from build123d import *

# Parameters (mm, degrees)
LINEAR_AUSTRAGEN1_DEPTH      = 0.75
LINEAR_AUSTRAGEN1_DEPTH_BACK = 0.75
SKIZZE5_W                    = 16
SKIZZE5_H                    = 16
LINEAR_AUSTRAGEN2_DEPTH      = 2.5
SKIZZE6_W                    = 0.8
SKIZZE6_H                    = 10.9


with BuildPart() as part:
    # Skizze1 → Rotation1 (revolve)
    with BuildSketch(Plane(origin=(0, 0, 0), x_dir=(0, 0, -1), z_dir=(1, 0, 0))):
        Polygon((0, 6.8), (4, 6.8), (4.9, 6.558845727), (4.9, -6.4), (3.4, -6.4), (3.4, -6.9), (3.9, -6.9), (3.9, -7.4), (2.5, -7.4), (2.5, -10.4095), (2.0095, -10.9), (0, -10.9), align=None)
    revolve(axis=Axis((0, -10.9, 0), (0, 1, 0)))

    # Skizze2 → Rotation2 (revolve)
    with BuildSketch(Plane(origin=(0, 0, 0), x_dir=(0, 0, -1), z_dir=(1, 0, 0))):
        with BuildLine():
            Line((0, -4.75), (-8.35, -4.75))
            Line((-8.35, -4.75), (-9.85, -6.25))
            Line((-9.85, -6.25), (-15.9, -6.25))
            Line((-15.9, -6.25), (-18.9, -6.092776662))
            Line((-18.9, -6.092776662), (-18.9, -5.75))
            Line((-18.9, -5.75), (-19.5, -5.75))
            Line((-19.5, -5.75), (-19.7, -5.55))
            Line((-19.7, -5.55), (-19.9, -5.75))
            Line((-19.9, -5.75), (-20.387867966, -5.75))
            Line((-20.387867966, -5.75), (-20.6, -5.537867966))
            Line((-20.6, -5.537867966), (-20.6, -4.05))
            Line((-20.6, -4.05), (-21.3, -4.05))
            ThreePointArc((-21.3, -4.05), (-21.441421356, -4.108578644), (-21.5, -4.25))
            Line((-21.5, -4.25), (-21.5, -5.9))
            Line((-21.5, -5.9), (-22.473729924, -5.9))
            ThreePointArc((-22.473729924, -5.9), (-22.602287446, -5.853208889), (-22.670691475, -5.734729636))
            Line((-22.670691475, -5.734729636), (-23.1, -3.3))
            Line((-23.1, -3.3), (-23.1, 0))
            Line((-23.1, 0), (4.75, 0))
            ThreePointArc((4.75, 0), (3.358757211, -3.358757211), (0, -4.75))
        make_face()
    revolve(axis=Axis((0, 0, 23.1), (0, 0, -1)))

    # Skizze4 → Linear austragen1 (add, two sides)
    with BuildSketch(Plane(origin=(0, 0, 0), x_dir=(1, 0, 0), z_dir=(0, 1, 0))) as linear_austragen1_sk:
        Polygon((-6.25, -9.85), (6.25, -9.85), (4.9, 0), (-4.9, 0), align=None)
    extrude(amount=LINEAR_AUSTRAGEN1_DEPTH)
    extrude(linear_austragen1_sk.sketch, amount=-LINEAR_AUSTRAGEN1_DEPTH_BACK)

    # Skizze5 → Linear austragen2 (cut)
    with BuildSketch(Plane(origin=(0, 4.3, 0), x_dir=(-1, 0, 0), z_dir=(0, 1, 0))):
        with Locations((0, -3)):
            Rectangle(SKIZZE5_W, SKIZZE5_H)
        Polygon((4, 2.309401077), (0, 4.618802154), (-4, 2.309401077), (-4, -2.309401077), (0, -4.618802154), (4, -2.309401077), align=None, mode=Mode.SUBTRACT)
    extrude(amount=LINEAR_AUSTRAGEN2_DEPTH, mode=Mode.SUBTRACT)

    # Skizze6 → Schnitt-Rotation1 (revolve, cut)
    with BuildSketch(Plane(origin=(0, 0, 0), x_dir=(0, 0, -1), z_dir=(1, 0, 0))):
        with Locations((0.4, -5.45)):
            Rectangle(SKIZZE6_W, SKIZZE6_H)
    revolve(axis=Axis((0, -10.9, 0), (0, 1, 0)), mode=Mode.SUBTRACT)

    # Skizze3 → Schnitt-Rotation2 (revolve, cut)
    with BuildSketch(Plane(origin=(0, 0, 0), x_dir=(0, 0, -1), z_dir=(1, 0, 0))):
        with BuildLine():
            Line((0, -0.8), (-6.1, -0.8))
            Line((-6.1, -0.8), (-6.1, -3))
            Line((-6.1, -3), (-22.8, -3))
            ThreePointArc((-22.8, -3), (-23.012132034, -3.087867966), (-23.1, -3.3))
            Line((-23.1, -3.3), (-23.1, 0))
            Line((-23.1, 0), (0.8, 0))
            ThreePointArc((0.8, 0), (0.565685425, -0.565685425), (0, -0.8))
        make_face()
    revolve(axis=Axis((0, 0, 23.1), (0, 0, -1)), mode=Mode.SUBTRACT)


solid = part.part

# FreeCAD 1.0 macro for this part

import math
import FreeCAD as App
import Part
import Sketcher
from FreeCAD import Vector
Q = App.Units.Quantity


def add_polygon(sketch, points):
    """Adds a closed chain of lines whose ends are joined by coincident constraints."""
    first, n = sketch.GeometryCount, len(points)
    for a, b in zip(points, points[1:] + points[:1]):
        sketch.addGeometry(Part.LineSegment(App.Vector(*a, 0), App.Vector(*b, 0)), False)
    for i in range(n):
        sketch.addConstraint(Sketcher.Constraint("Coincident", first + i, 2, first + (i + 1) % n, 1))

doc = App.newDocument("Part")
body = doc.addObject("PartDesign::Body", "Body")

# Sketch on YZ plane
sketch1 = body.newObject("Sketcher::SketchObject", "Sketch")
sketch1.AttachmentSupport = (doc.getObject("YZ_Plane"), [""])
sketch1.MapMode = "FlatFace"
add_polygon(sketch1, [(6.8, -4), (6.8, 0), (-10.9, 0), (-10.9, -2.0095), (-10.4095, -2.5), (-7.4, -2.5), (-7.4, -3.9), (-6.9, -3.9), (-6.9, -3.4), (-6.4, -3.4), (-6.4, -4.9), (6.558846, -4.9)])  # lines 0-11
sketch1.addConstraint([
    Sketcher.Constraint("Vertical", 0),
    Sketcher.Constraint("Horizontal", 1),
    Sketcher.Constraint("Vertical", 2),
    Sketcher.Constraint("Horizontal", 4),
    Sketcher.Constraint("Vertical", 5),
    Sketcher.Constraint("Horizontal", 6),
    Sketcher.Constraint("Vertical", 7),
    Sketcher.Constraint("Horizontal", 8),
    Sketcher.Constraint("Vertical", 9),
    Sketcher.Constraint("Horizontal", 10),
    Sketcher.Constraint("PointOnObject", 0, 2, -1),
    Sketcher.Constraint("Equal", 6, 8),
    Sketcher.Constraint("Equal", 8, 7),
    Sketcher.Constraint("DistanceY", 0, 1, 0, 2, Q("4 mm")),
    Sketcher.Constraint("Angle", 3, Q("-45 deg")),
    Sketcher.Constraint("Angle", 11, Q("75 deg")),
    Sketcher.Constraint("DistanceX", 1, 2, 1, 1, Q("17.7 mm")),
    Sketcher.Constraint("DistanceX", 6, 1, 6, 2, Q("0.5 mm")),
    Sketcher.Constraint("DistanceY", 5, 2, 5, 1, Q("1.4 mm")),
    Sketcher.Constraint("DistanceY", 9, 2, 9, 1, Q("1.5 mm")),
    Sketcher.Constraint("DistanceX", 2, 2, 6, 2, Q("4 mm")),
    Sketcher.Constraint("DistanceX", -1, 1, 0, 2, Q("6.8 mm")),
    Sketcher.Constraint("DistanceY", 3, 2, -1, 1, Q("2.5 mm")),
    Sketcher.Constraint("DistanceX", 4, 1, 4, 2, Q("3.0095 mm")),
])
revolution = body.newObject("PartDesign::Revolution", "Revolution")
revolution.Profile = sketch1
revolution.ReferenceAxis = (sketch1, ["H_Axis"])
revolution.Angle = 360

# Sketch on YZ plane
sketch2 = body.newObject("Sketcher::SketchObject", "Sketch001")
sketch2.AttachmentSupport = (doc.getObject("YZ_Plane"), [""])
sketch2.MapMode = "FlatFace"
sketch2.addGeometry([
    Part.LineSegment(Vector(-4.75, 8.35, 0), Vector(-4.75, 0, 0)),  # 0
    Part.ArcOfCircle(Part.Circle(Vector(0, 0, 0), Vector(0, 0, 1), 4.75), math.radians(180), math.radians(270)),  # 1
    Part.LineSegment(Vector(0, -4.75, 0), Vector(0, 23.1, 0)),  # 2
    Part.LineSegment(Vector(0, 23.1, 0), Vector(-3.3, 23.1, 0)),  # 3
    Part.LineSegment(Vector(-3.3, 23.1, 0), Vector(-5.73473, 22.670691, 0)),  # 4
    Part.ArcOfCircle(Part.Circle(Vector(-5.7, 22.47373, 0), Vector(0, 0, 1), 0.2), math.radians(100), math.radians(180)),  # 5
    Part.LineSegment(Vector(-5.9, 22.47373, 0), Vector(-5.9, 21.5, 0)),  # 6
    Part.LineSegment(Vector(-5.9, 21.5, 0), Vector(-4.25, 21.5, 0)),  # 7
    Part.ArcOfCircle(Part.Circle(Vector(-4.25, 21.3, 0), Vector(0, 0, 1), 0.2), math.radians(0), math.radians(90)),  # 8
    Part.LineSegment(Vector(-4.05, 21.3, 0), Vector(-4.05, 20.6, 0)),  # 9
    Part.LineSegment(Vector(-4.05, 20.6, 0), Vector(-5.537868, 20.6, 0)),  # 10
    Part.LineSegment(Vector(-5.537868, 20.6, 0), Vector(-5.75, 20.387868, 0)),  # 11
    Part.LineSegment(Vector(-5.75, 20.387868, 0), Vector(-5.75, 19.9, 0)),  # 12
    Part.LineSegment(Vector(-5.75, 19.9, 0), Vector(-5.55, 19.7, 0)),  # 13
    Part.LineSegment(Vector(-5.55, 19.7, 0), Vector(-5.75, 19.5, 0)),  # 14
    Part.LineSegment(Vector(-5.75, 19.5, 0), Vector(-5.75, 18.9, 0)),  # 15
    Part.LineSegment(Vector(-5.75, 18.9, 0), Vector(-6.092777, 18.9, 0)),  # 16
    Part.LineSegment(Vector(-6.092777, 18.9, 0), Vector(-6.25, 15.9, 0)),  # 17
    Part.LineSegment(Vector(-6.25, 15.9, 0), Vector(-6.25, 9.85, 0)),  # 18
    Part.LineSegment(Vector(-6.25, 9.85, 0), Vector(-4.75, 8.35, 0)),  # 19
], False)
sketch2.addConstraint([
    Sketcher.Constraint("Tangent", 0, 2, 1, 1),
    Sketcher.Constraint("Coincident", 1, 2, 2, 1),
    Sketcher.Constraint("Coincident", 2, 2, 3, 1),
    Sketcher.Constraint("Coincident", 3, 2, 4, 1),
    Sketcher.Constraint("Tangent", 4, 2, 5, 1),
    Sketcher.Constraint("Tangent", 5, 2, 6, 1),
    Sketcher.Constraint("Coincident", 6, 2, 7, 1),
    Sketcher.Constraint("Tangent", 7, 2, 8, 2),
    Sketcher.Constraint("Tangent", 8, 1, 9, 1),
    Sketcher.Constraint("Coincident", 9, 2, 10, 1),
    Sketcher.Constraint("Coincident", 10, 2, 11, 1),
    Sketcher.Constraint("Coincident", 11, 2, 12, 1),
    Sketcher.Constraint("Coincident", 12, 2, 13, 1),
    Sketcher.Constraint("Coincident", 13, 2, 14, 1),
    Sketcher.Constraint("Coincident", 14, 2, 15, 1),
    Sketcher.Constraint("Coincident", 15, 2, 16, 1),
    Sketcher.Constraint("Coincident", 16, 2, 17, 1),
    Sketcher.Constraint("Coincident", 17, 2, 18, 1),
    Sketcher.Constraint("Coincident", 18, 2, 19, 1),
    Sketcher.Constraint("Coincident", 19, 2, 0, 1),
    Sketcher.Constraint("Vertical", 0),
    Sketcher.Constraint("Vertical", 2),
    Sketcher.Constraint("Horizontal", 3),
    Sketcher.Constraint("Vertical", 6),
    Sketcher.Constraint("Horizontal", 7),
    Sketcher.Constraint("Vertical", 9),
    Sketcher.Constraint("Horizontal", 10),
    Sketcher.Constraint("Vertical", 12),
    Sketcher.Constraint("Vertical", 15),
    Sketcher.Constraint("Horizontal", 16),
    Sketcher.Constraint("Vertical", 18),
    Sketcher.Constraint("Coincident", 1, 3, -1, 1),
    Sketcher.Constraint("Equal", 5, 8),
    Sketcher.Constraint("PointOnObject", 1, 2, -2),
    Sketcher.Constraint("Perpendicular", 11, 13),
    Sketcher.Constraint("Perpendicular", 13, 14),
    Sketcher.Constraint("Perpendicular", 14, 19),
    Sketcher.Constraint("Vertical", 12, 2, 14, 2),
    Sketcher.Constraint("Equal", 13, 14),
    Sketcher.Constraint("Radius", 5, Q("0.2 mm")),
    Sketcher.Constraint("Angle", 4, Q("-170 deg")),
    Sketcher.Constraint("Angle", 17, Q("-93 deg")),
    Sketcher.Constraint("Radius", 1, Q("4.75 mm")),
    Sketcher.Constraint("DistanceX", 3, 2, 3, 1, Q("3.3 mm")),
    Sketcher.Constraint("DistanceY", 9, 2, 9, 1, Q("0.7 mm")),
    Sketcher.Constraint("DistanceY", 15, 2, 15, 1, Q("0.6 mm")),
    Sketcher.Constraint("DistanceY", 14, 2, 6, 2, Q("2 mm")),
    Sketcher.Constraint("DistanceY", 15, 2, 12, 2, Q("1 mm")),
    Sketcher.Constraint("DistanceY", 17, 2, 16, 2, Q("3 mm")),
    Sketcher.Constraint("DistanceX", 15, 2, 19, 2, Q("1 mm")),
    Sketcher.Constraint("Distance", 11, Q("0.3 mm")),
    Sketcher.Constraint("DistanceX", 7, 1, 7, 2, Q("1.65 mm")),
    Sketcher.Constraint("DistanceY", 0, 2, 0, 1, Q("8.35 mm")),
    Sketcher.Constraint("DistanceY", 2, 1, 2, 2, Q("27.85 mm")),
    Sketcher.Constraint("DistanceY", 18, 2, 18, 1, Q("6.05 mm")),
    Sketcher.Constraint("DistanceX", 5, 3, -1, 1, Q("5.7 mm")),
    Sketcher.Constraint("DistanceY", -1, 1, 8, 3, Q("21.3 mm")),
])
revolution2 = body.newObject("PartDesign::Revolution", "Revolution001")
revolution2.Profile = sketch2
revolution2.ReferenceAxis = (sketch2, ["V_Axis"])
revolution2.Angle = 360

# Sketch on XZ plane
sketch3 = body.newObject("Sketcher::SketchObject", "Sketch002")
sketch3.AttachmentSupport = (doc.getObject("XZ_Plane"), [""])
sketch3.MapMode = "FlatFace"
add_polygon(sketch3, [(-6.25, 9.85), (6.25, 9.85), (4.9, 0), (-4.9, 0)])  # lines 0-3
sketch3.addConstraint([
    Sketcher.Constraint("Horizontal", 0),
    Sketcher.Constraint("Horizontal", 2),
    Sketcher.Constraint("Symmetric", 1, 2, 2, 2, -1, 1),
    Sketcher.Constraint("Equal", 1, 3),
    Sketcher.Constraint("DistanceX", 0, 1, 0, 2, Q("12.5 mm")),
    Sketcher.Constraint("DistanceX", 2, 2, 2, 1, Q("9.8 mm")),
    Sketcher.Constraint("DistanceY", -1, 1, 0, 2, Q("9.85 mm")),
])
pad1 = body.newObject("PartDesign::Pad", "Pad")
pad1.Profile = sketch3
pad1.Type = "TwoLengths"
pad1.Length = 0.75
pad1.Length2 = 0.75
pad1.Reversed = True

# Sketch on XZ plane
sketch4 = body.newObject("Sketcher::SketchObject", "Sketch003")
sketch4.AttachmentSupport = (doc.getObject("XZ_Plane"), [""])
sketch4.MapMode = "FlatFace"
sketch4.AttachmentOffset = App.Placement(Vector(0, 0, -4.3), App.Rotation())
add_polygon(sketch4, [(8, 5), (8, -11), (-8, -11), (-8, 5)])  # lines 0-3
add_polygon(sketch4, [(0, 4.618802), (-4, 2.309401), (-4, -2.309401), (0, -4.618802), (4, -2.309401), (4, 2.309401)])  # lines 4-9
sketch4.addConstraint([
    Sketcher.Constraint("Vertical", 0),
    Sketcher.Constraint("Horizontal", 1),
    Sketcher.Constraint("Vertical", 2),
    Sketcher.Constraint("Horizontal", 3),
    Sketcher.Constraint("Vertical", 5),
    Sketcher.Constraint("Vertical", 8),
    Sketcher.Constraint("Symmetric", 4, 2, 7, 2, -1, 1),
    Sketcher.Constraint("Symmetric", 6, 2, 9, 2, -1, 1),
    Sketcher.Constraint("PointOnObject", 6, 2, -2),
    Sketcher.Constraint("Parallel", 6, 9),
    Sketcher.Constraint("Horizontal", 5, 2, 7, 2),
    Sketcher.Constraint("Equal", 3, 0),
    Sketcher.Constraint("DistanceX", 1, 2, 1, 1, Q("16 mm")),
    Sketcher.Constraint("Angle", 4, Q("-150 deg")),
    Sketcher.Constraint("DistanceX", -1, 1, 0, 2, Q("8 mm")),
    Sketcher.Constraint("DistanceY", 0, 2, -1, 1, Q("11 mm")),
    Sketcher.Constraint("DistanceX", 4, 2, -1, 1, Q("4 mm")),
    Sketcher.Constraint("DistanceY", -1, 1, 4, 2, Q("2.309401 mm")),
])
pocket1 = body.newObject("PartDesign::Pocket", "Pocket")
pocket1.Profile = sketch4
pocket1.Length = 2.5

# Sketch on YZ plane
sketch5 = body.newObject("Sketcher::SketchObject", "Sketch004")
sketch5.AttachmentSupport = (doc.getObject("YZ_Plane"), [""])
sketch5.MapMode = "FlatFace"
add_polygon(sketch5, [(0, 0), (-10.9, 0), (-10.9, -0.8), (0, -0.8)])  # lines 0-3
sketch5.addConstraint([
    Sketcher.Constraint("Horizontal", 0),
    Sketcher.Constraint("Vertical", 1),
    Sketcher.Constraint("Horizontal", 2),
    Sketcher.Constraint("Vertical", 3),
    Sketcher.Constraint("Coincident", 3, 2, -1, 1),
    Sketcher.Constraint("DistanceX", 0, 2, 0, 1, Q("10.9 mm")),
    Sketcher.Constraint("DistanceY", 1, 2, 1, 1, Q("0.8 mm")),
])
groove = body.newObject("PartDesign::Groove", "Groove")
groove.Profile = sketch5
groove.ReferenceAxis = (sketch5, ["H_Axis"])
groove.Angle = 360

# Sketch on YZ plane
sketch6 = body.newObject("Sketcher::SketchObject", "Sketch005")
sketch6.AttachmentSupport = (doc.getObject("YZ_Plane"), [""])
sketch6.MapMode = "FlatFace"
sketch6.addGeometry([
    Part.LineSegment(Vector(-0.8, 6.1, 0), Vector(-0.8, 0, 0)),  # 0
    Part.ArcOfCircle(Part.Circle(Vector(0, 0, 0), Vector(0, 0, 1), 0.8), math.radians(180), math.radians(270)),  # 1
    Part.LineSegment(Vector(0, -0.8, 0), Vector(0, 23.1, 0)),  # 2
    Part.LineSegment(Vector(0, 23.1, 0), Vector(-3.3, 23.1, 0)),  # 3
    Part.ArcOfCircle(Part.Circle(Vector(-3.3, 22.8, 0), Vector(0, 0, 1), 0.3), math.radians(0), math.radians(90)),  # 4
    Part.LineSegment(Vector(-3, 22.8, 0), Vector(-3, 6.1, 0)),  # 5
    Part.LineSegment(Vector(-3, 6.1, 0), Vector(-0.8, 6.1, 0)),  # 6
], False)
sketch6.addConstraint([
    Sketcher.Constraint("Tangent", 0, 2, 1, 1),
    Sketcher.Constraint("Coincident", 1, 2, 2, 1),
    Sketcher.Constraint("Coincident", 2, 2, 3, 1),
    Sketcher.Constraint("Tangent", 3, 2, 4, 2),
    Sketcher.Constraint("Tangent", 4, 1, 5, 1),
    Sketcher.Constraint("Coincident", 5, 2, 6, 1),
    Sketcher.Constraint("Coincident", 6, 2, 0, 1),
    Sketcher.Constraint("Vertical", 0),
    Sketcher.Constraint("Vertical", 2),
    Sketcher.Constraint("Horizontal", 3),
    Sketcher.Constraint("Vertical", 5),
    Sketcher.Constraint("Horizontal", 6),
    Sketcher.Constraint("Coincident", 1, 3, -1, 1),
    Sketcher.Constraint("PointOnObject", 1, 2, -2),
    Sketcher.Constraint("Radius", 1, Q("0.8 mm")),
    Sketcher.Constraint("Radius", 4, Q("0.3 mm")),
    Sketcher.Constraint("DistanceX", 3, 2, 3, 1, Q("3.3 mm")),
    Sketcher.Constraint("DistanceY", 0, 2, 0, 1, Q("6.1 mm")),
    Sketcher.Constraint("DistanceY", 2, 1, 2, 2, Q("23.9 mm")),
])
groove2 = body.newObject("PartDesign::Groove", "Groove001")
groove2.Profile = sketch6
groove2.ReferenceAxis = (sketch6, ["V_Axis"])
groove2.Angle = 360

doc.recompute()
